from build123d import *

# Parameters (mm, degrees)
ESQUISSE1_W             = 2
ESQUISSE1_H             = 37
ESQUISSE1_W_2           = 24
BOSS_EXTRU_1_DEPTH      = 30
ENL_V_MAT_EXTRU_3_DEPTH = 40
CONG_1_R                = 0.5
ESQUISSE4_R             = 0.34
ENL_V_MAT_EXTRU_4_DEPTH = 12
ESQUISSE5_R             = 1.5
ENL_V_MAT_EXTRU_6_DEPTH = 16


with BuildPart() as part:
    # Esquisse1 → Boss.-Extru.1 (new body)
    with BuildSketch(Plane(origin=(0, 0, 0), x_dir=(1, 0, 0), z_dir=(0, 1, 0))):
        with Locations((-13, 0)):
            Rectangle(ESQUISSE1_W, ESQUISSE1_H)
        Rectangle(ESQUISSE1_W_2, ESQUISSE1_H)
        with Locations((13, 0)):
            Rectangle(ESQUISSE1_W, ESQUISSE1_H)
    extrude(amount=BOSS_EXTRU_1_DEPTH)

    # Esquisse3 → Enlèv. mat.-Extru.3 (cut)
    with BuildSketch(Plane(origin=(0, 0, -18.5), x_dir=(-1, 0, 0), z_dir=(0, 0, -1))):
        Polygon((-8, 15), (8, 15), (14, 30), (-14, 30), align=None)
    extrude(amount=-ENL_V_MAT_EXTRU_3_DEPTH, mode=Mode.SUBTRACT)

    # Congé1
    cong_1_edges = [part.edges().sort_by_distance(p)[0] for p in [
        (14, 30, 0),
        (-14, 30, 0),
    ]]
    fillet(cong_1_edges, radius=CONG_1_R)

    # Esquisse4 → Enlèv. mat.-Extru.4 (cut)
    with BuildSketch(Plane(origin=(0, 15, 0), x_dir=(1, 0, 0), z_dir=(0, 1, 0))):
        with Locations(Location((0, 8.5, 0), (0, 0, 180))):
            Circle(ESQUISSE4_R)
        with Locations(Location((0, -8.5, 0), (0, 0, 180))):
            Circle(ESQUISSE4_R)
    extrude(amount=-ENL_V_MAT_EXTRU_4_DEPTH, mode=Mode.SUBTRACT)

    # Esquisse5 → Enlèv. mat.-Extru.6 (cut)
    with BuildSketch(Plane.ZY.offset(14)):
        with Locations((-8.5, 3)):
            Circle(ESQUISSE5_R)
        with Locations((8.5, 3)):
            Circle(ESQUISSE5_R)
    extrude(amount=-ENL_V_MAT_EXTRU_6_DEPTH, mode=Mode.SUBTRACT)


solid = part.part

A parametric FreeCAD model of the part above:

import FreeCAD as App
import Part
import Sketcher
from FreeCAD import Vector
Q = App.Units.Quantity


def edges_at(feature, points):
    """Names of the edges that pass closest to the given points."""
    edges = feature.Shape.Edges
    near = lambda p: min(range(len(edges)), key=lambda i: edges[i].distToShape(Part.Vertex(*p))[0])
    return sorted({f"Edge{near(p) + 1}" for p in points})

doc = App.newDocument("Part")
body = doc.addObject("PartDesign::Body", "Body")

sketch1 = body.newObject("Sketcher::SketchObject", "Sketch")
sketch1.AttachmentSupport = (doc.getObject("XZ_Plane"), [""])
sketch1.MapMode = "FlatFace"
sketch1.addGeometry([
    Part.LineSegment(Vector(-14, -18, 0), Vector(-14, 18, 0)),
    Part.LineSegment(Vector(-14, 18, 0), Vector(14, 18, 0)),
    Part.LineSegment(Vector(14, 18, 0), Vector(14, -18, 0)),
    Part.LineSegment(Vector(14, -18, 0), Vector(-14, -18, 0)),
], False)
sketch1.addConstraint([
    Sketcher.Constraint("Coincident", 0, 2, 1, 1),
    Sketcher.Constraint("Coincident", 1, 2, 2, 1),
    Sketcher.Constraint("Coincident", 2, 2, 3, 1),
    Sketcher.Constraint("Coincident", 3, 2, 0, 1),
    Sketcher.Constraint("Vertical", 0),
    Sketcher.Constraint("Horizontal", 1),
    Sketcher.Constraint("Vertical", 2),
    Sketcher.Constraint("Horizontal", 3),
    Sketcher.Constraint("Symmetric", 0, 2, 2, 2, -1, 1),
    Sketcher.Constraint("DistanceX", 1, 1, 1, 2, Q("28 mm")),
    Sketcher.Constraint("DistanceY", 0, 1, 0, 2, Q("37 mm")),
])
pad1 = body.newObject("PartDesign::Pad", "Pad")
pad1.Profile = sketch1
pad1.Length = 30
pad1.Reversed = True

sketch2 = body.newObject("Sketcher::SketchObject", "Sketch001")
sketch2.AttachmentSupport = (doc.getObject("XY_Plane"), [""])
sketch2.MapMode = "FlatFace"
sketch2.AttachmentOffset = App.Placement(Vector(0, 0, -18.5), App.Rotation())
sketch2.addGeometry([
    Part.LineSegment(Vector(8, 15, 0), Vector(-8, 15, 0)),
    Part.LineSegment(Vector(-8, 15, 0), Vector(-14, 30, 0)),
    Part.LineSegment(Vector(-14, 30, 0), Vector(14, 30, 0)),
    Part.LineSegment(Vector(14, 30, 0), Vector(8, 15, 0)),
], False)
sketch2.addConstraint([
    Sketcher.Constraint("Coincident", 0, 2, 1, 1),
    Sketcher.Constraint("Coincident", 1, 2, 2, 1),
    Sketcher.Constraint("Coincident", 2, 2, 3, 1),
    Sketcher.Constraint("Coincident", 3, 2, 0, 1),
    Sketcher.Constraint("Horizontal", 0),
    Sketcher.Constraint("Horizontal", 2),
    Sketcher.Constraint("Equal", 1, 3),
    Sketcher.Constraint("DistanceX", 0, 2, 0, 1, Q("16 mm")),
    Sketcher.Constraint("DistanceX", 2, 1, 2, 2, Q("28 mm")),
    Sketcher.Constraint("DistanceX", 0, 2, -1, 1, Q("8 mm")),
    Sketcher.Constraint("DistanceY", -1, 1, 0, 2, Q("15 mm")),
    Sketcher.Constraint("DistanceY", -1, 1, 1, 2, Q("30 mm")),
])
pocket1 = body.newObject("PartDesign::Pocket", "Pocket")
pocket1.Profile = sketch2
pocket1.Length = 40
pocket1.Reversed = True
doc.recompute()

fillet = body.newObject("PartDesign::Fillet", "Fillet")
fillet.Base = (pocket1, edges_at(pocket1, [(14, 30, 0), (-14, 30, 0)]))
fillet.Radius = 0.5

sketch3 = body.newObject("Sketcher::SketchObject", "Sketch002")
sketch3.AttachmentSupport = (doc.getObject("XZ_Plane"), [""])
sketch3.MapMode = "FlatFace"
sketch3.AttachmentOffset = App.Placement(Vector(0, 0, -15), App.Rotation())
sketch3.addGeometry([
    Part.Circle(Vector(0, -8.5, 0), Vector(0, 0, 1), 0.34),
    Part.Circle(Vector(0, 8.5, 0), Vector(0, 0, 1), 0.34),
], False)
sketch3.addConstraint([
    Sketcher.Constraint("Equal", 0, 1),
    Sketcher.Constraint("Symmetric", 0, 3, 1, 3, -1, 1),
    Sketcher.Constraint("PointOnObject", 0, 3, -2),
    Sketcher.Constraint("Diameter", 0, Q("0.68 mm")),
    Sketcher.Constraint("DistanceY", 0, 3, 1, 3, Q("17 mm")),
])
pocket2 = body.newObject("PartDesign::Pocket", "Pocket001")
pocket2.Profile = sketch3
pocket2.Length = 12
pocket2.Reversed = True

sketch4 = body.newObject("Sketcher::SketchObject", "Sketch003")
sketch4.AttachmentSupport = (doc.getObject("YZ_Plane"), [""])
sketch4.MapMode = "FlatFace"
sketch4.AttachmentOffset = App.Placement(Vector(0, 0, -14), App.Rotation())
sketch4.addGeometry([
    Part.Circle(Vector(3, -8.5, 0), Vector(0, 0, 1), 1.5),
    Part.Circle(Vector(3, 8.5, 0), Vector(0, 0, 1), 1.5),
], False)
sketch4.addConstraint([
    Sketcher.Constraint("Equal", 0, 1),
    Sketcher.Constraint("Symmetric", 0, 3, 1, 3, -1),
    Sketcher.Constraint("Diameter", 0, Q("3 mm")),
    Sketcher.Constraint("DistanceX", -1, 1, 0, 3, Q("3 mm")),
    Sketcher.Constraint("DistanceY", 0, 3, 1, 3, Q("17 mm")),
])
pocket3 = body.newObject("PartDesign::Pocket", "Pocket002")
pocket3.Profile = sketch4
pocket3.Length = 16
pocket3.Reversed = True

doc.recompute()
